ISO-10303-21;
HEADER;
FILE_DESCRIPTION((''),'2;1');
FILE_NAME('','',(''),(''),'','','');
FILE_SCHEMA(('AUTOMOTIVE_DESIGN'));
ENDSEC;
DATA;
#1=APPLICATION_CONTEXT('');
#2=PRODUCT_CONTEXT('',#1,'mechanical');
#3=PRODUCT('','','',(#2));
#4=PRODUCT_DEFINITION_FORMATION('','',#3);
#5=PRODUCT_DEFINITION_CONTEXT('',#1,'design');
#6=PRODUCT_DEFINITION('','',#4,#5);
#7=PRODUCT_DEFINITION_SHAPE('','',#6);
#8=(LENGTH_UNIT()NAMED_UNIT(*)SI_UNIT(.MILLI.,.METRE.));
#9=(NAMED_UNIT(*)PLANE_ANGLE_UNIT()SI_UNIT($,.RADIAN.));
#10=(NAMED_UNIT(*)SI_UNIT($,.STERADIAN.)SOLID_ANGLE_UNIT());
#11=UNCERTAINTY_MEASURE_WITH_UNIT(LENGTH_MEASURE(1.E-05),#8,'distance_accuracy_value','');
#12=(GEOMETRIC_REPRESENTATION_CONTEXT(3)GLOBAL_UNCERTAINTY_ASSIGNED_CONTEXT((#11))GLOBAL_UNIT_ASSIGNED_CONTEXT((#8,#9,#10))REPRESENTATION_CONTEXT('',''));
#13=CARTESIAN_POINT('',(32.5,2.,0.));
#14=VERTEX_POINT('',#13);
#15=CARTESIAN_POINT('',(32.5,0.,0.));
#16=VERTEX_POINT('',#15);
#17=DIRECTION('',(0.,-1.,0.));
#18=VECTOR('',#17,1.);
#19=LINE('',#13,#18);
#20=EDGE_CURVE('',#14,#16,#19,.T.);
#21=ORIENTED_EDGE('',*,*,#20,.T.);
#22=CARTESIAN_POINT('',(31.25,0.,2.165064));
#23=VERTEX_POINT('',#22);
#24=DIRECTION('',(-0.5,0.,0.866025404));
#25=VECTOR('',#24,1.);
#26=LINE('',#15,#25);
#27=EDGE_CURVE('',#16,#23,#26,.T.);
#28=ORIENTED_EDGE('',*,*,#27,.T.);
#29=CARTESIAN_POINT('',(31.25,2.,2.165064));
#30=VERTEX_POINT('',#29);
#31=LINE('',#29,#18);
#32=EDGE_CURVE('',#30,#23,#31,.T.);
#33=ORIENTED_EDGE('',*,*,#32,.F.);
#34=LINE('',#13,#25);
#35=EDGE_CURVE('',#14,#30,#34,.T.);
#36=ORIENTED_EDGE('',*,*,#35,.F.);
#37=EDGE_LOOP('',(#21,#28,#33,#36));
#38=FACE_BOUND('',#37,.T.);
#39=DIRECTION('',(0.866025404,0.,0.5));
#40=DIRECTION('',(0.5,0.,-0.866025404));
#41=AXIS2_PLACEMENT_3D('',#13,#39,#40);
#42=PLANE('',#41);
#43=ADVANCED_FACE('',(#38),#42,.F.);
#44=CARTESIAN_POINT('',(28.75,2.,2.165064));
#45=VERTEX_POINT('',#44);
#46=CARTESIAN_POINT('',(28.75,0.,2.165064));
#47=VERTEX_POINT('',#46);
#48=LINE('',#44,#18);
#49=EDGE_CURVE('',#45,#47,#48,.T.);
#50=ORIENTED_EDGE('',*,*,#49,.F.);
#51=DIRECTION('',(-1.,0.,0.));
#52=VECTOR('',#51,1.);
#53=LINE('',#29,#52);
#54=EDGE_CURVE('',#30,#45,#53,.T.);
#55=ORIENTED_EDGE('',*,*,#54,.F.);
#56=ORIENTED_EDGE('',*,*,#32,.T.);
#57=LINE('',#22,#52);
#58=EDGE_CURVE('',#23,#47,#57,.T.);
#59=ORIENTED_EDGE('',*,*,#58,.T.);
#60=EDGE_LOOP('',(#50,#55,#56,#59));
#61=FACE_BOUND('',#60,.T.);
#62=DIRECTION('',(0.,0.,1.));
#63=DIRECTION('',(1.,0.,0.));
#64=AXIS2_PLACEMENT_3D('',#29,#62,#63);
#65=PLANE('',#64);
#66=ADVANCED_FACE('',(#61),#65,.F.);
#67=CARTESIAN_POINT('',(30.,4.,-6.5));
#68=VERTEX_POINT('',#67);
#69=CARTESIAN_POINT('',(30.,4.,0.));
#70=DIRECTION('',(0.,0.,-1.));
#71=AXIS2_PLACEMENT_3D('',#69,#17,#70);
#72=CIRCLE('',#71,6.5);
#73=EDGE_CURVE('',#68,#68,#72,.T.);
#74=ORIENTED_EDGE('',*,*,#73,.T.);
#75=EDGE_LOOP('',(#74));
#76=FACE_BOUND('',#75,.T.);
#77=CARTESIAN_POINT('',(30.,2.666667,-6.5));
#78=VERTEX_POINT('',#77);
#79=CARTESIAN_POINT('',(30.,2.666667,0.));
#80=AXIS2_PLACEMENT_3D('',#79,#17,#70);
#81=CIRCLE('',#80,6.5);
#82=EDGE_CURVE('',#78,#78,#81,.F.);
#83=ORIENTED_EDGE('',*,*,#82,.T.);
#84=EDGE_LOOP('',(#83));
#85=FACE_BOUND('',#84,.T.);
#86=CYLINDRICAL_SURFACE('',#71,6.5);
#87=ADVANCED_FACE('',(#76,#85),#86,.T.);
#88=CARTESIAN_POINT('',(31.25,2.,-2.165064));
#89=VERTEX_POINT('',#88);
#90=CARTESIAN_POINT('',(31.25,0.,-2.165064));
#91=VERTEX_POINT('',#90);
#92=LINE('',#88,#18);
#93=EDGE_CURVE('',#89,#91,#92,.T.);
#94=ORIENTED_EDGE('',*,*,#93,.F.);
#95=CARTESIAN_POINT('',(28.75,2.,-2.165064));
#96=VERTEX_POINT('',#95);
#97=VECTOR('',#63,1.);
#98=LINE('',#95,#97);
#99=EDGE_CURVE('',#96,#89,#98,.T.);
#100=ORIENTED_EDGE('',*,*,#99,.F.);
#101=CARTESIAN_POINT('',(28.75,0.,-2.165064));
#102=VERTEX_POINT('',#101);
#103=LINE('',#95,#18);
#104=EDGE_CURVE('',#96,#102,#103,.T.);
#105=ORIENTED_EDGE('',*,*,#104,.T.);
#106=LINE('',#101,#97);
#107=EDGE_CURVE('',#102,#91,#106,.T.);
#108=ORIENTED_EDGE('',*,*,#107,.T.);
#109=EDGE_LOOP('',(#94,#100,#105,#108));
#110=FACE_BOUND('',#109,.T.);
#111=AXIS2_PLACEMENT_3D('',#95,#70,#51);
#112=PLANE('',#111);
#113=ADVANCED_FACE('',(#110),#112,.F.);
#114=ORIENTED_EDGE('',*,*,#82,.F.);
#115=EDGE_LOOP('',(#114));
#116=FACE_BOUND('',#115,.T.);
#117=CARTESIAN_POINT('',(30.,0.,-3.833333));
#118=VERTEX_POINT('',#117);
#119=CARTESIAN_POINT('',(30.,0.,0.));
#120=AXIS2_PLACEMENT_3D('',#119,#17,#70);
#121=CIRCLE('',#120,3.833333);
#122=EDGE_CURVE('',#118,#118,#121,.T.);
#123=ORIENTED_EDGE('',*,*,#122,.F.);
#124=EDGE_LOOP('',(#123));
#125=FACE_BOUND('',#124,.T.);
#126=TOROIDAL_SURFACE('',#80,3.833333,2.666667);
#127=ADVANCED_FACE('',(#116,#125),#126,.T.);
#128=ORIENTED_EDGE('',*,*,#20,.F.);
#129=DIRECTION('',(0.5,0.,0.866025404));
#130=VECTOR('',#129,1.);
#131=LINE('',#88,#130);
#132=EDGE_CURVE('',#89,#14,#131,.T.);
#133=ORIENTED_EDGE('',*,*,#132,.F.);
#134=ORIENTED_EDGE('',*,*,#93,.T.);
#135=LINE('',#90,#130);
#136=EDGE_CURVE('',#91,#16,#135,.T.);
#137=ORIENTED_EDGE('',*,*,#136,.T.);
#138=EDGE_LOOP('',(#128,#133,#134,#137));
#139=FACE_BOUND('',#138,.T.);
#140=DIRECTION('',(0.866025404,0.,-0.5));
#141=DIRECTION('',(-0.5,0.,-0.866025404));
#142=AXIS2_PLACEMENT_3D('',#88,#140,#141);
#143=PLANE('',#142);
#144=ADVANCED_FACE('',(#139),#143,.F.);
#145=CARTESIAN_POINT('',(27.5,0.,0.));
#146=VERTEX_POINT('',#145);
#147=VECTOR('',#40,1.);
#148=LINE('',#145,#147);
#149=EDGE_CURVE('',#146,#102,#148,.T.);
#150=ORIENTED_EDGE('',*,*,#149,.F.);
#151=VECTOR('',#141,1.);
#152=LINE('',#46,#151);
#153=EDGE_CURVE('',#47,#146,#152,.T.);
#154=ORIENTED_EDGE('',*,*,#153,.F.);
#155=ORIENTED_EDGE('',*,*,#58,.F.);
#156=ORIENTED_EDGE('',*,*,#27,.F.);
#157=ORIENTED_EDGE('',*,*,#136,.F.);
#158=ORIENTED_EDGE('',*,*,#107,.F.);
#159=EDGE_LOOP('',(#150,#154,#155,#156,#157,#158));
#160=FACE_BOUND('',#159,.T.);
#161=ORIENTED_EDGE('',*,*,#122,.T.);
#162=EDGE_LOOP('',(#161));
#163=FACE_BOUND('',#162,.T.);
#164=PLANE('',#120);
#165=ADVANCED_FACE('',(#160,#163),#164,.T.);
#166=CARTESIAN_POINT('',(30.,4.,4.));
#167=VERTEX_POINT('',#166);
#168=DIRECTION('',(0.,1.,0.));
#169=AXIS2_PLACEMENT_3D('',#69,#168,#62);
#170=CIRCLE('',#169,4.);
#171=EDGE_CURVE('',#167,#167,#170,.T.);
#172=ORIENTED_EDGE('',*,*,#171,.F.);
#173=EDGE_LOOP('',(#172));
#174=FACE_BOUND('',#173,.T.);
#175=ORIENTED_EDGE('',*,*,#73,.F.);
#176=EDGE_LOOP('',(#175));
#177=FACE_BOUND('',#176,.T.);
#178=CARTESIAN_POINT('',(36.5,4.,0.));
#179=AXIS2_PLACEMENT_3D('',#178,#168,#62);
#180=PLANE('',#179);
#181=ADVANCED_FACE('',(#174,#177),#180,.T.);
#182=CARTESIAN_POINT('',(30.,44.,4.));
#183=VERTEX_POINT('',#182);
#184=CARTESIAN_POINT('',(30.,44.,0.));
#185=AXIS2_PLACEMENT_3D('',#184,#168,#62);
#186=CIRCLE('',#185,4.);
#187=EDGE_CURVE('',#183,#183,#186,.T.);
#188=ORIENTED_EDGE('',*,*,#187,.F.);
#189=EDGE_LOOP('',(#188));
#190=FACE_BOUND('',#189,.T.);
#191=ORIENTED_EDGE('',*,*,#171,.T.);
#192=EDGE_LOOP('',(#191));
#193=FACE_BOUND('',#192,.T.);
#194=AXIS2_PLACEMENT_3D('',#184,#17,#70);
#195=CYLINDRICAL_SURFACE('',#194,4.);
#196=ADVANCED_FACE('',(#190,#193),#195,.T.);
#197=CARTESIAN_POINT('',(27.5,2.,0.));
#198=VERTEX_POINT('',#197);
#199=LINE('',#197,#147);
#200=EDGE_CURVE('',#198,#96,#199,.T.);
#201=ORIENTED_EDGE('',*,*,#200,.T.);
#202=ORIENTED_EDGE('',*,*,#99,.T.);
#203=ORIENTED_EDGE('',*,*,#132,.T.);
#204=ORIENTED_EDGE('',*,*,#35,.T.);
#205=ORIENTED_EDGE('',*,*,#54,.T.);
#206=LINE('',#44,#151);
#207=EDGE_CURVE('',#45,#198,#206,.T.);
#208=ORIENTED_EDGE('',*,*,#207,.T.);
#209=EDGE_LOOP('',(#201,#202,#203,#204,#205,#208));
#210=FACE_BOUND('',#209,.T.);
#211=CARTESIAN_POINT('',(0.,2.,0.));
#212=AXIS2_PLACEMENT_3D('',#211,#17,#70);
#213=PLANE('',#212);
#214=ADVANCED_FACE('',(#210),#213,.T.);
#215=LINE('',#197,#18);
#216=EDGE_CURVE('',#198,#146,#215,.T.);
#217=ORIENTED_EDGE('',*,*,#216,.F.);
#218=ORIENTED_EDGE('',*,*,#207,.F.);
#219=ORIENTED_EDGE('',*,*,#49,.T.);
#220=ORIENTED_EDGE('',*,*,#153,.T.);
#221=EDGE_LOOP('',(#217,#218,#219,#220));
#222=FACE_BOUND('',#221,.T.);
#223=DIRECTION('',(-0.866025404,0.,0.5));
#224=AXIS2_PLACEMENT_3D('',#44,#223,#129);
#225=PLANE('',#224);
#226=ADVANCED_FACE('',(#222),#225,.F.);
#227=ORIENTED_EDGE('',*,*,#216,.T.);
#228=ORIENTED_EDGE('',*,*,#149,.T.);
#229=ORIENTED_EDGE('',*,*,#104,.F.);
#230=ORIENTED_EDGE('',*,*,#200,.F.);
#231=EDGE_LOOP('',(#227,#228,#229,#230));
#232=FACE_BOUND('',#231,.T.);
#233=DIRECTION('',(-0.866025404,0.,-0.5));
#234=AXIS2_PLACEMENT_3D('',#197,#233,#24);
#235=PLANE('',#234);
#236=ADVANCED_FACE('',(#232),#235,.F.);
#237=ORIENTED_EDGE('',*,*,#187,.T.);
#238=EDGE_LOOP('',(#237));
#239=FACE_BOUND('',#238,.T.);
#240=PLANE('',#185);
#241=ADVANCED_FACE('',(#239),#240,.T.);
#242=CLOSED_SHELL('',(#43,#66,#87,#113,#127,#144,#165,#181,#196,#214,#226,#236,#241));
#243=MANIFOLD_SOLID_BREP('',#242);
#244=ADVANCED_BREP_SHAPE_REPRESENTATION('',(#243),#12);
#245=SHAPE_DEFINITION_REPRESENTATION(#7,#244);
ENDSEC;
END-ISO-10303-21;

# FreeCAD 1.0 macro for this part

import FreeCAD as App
import Part
import Sketcher

V = App.Vector
Q = App.Units.Quantity


def edges_at(feature, points):
    """Names of the edges that pass closest to the given points."""
    edges = feature.Shape.Edges
    near = lambda p: min(range(len(edges)), key=lambda i: edges[i].distToShape(Part.Vertex(*p))[0])
    return sorted({f"Edge{near(p) + 1}" for p in points})

doc = App.newDocument("Part")
body = doc.addObject("PartDesign::Body", "Body")

# Sketch on XY plane
sketch1 = body.newObject("Sketcher::SketchObject", "Sketch")
sketch1.AttachmentSupport = (doc.getObject("XY_Plane"), [""])
sketch1.MapMode = "FlatFace"
sketch1.addGeometry([
    Part.LineSegment(V(30, 4, 0), V(30, 0, 0)),
    Part.LineSegment(V(30, 0, 0), V(36.5, 0, 0)),
    Part.LineSegment(V(36.5, 0, 0), V(36.5, 4, 0)),
    Part.LineSegment(V(36.5, 4, 0), V(30, 4, 0)),
], False)
sketch1.addGeometry(Part.LineSegment(V(30, 4, 0), V(30, 0, 0)), True)  # axis
sketch1.addConstraint([
    Sketcher.Constraint("Coincident", 0, 2, 1, 1),
    Sketcher.Constraint("Coincident", 1, 2, 2, 1),
    Sketcher.Constraint("Coincident", 2, 2, 3, 1),
    Sketcher.Constraint("Coincident", 3, 2, 0, 1),
    Sketcher.Constraint("Vertical", 0),
    Sketcher.Constraint("Horizontal", 1),
    Sketcher.Constraint("Vertical", 2),
    Sketcher.Constraint("Horizontal", 3),
    Sketcher.Constraint("Vertical", 4),
    Sketcher.Constraint("Coincident", 4, 1, 3, 2),
    Sketcher.Constraint("PointOnObject", 0, 2, -1),
    Sketcher.Constraint("PointOnObject", 4, 2, -1),
    Sketcher.Constraint("DistanceY", 0, 2, 0, 1, Q("4 mm")),
    Sketcher.Constraint("DistanceX", 1, 1, 1, 2, Q("6.5 mm")),
    Sketcher.Constraint("DistanceX", -1, 1, 0, 2, Q("30 mm")),
])
revolution = body.newObject("PartDesign::Revolution", "Revolution")
revolution.Profile = sketch1
revolution.ReferenceAxis = (sketch1, ["Axis0"])
revolution.Angle = 360

# Sketch on XZ plane
sketch2 = body.newObject("Sketcher::SketchObject", "Sketch001")
sketch2.AttachmentSupport = (doc.getObject("XZ_Plane"), [""])
sketch2.MapMode = "FlatFace"
sketch2.AttachmentOffset = App.Placement(V(0, 0, -4), App.Rotation())
sketch2.addGeometry(Part.Circle(V(30, 0, 0), V(0, 0, 1), 4), False)
sketch2.addConstraint([
    Sketcher.Constraint("PointOnObject", 0, 3, -1),
    Sketcher.Constraint("Diameter", 0, Q("8 mm")),
    Sketcher.Constraint("DistanceX", -1, 1, 0, 3, Q("30 mm")),
])
pad1 = body.newObject("PartDesign::Pad", "Pad")
pad1.Profile = sketch2
pad1.Length = 40
pad1.Reversed = True

# Sketch on XZ plane
sketch3 = body.newObject("Sketcher::SketchObject", "Sketch002")
sketch3.AttachmentSupport = (doc.getObject("XZ_Plane"), [""])
sketch3.MapMode = "FlatFace"
sketch3.addGeometry([
    Part.LineSegment(V(28.8, -2.2, 0), V(31.2, -2.2, 0)),  # 0
    Part.LineSegment(V(31.2, -2.2, 0), V(32.5, 0, 0)),  # 1
    Part.LineSegment(V(32.5, 0, 0), V(31.2, 2.2, 0)),  # 2
    Part.LineSegment(V(31.2, 2.2, 0), V(28.8, 2.2, 0)),  # 3
    Part.LineSegment(V(28.8, 2.2, 0), V(27.5, 0, 0)),  # 4
    Part.LineSegment(V(27.5, 0, 0), V(28.8, -2.2, 0)),  # 5
], False)
sketch3.addConstraint([
    Sketcher.Constraint("Coincident", 0, 2, 1, 1),
    Sketcher.Constraint("Coincident", 1, 2, 2, 1),
    Sketcher.Constraint("Coincident", 2, 2, 3, 1),
    Sketcher.Constraint("Coincident", 3, 2, 4, 1),
    Sketcher.Constraint("Coincident", 4, 2, 5, 1),
    Sketcher.Constraint("Coincident", 5, 2, 0, 1),
    Sketcher.Constraint("Horizontal", 0),
    Sketcher.Constraint("Horizontal", 3),
    Sketcher.Constraint("Symmetric", 0, 2, 2, 2, -1),
    Sketcher.Constraint("PointOnObject", 1, 2, -1),
    Sketcher.Constraint("PointOnObject", 4, 2, -1),
    Sketcher.Constraint("Parallel", 1, 4),
    Sketcher.Constraint("Parallel", 2, 5),
    Sketcher.Constraint("Angle", 1, Q("60 deg")),
    Sketcher.Constraint("DistanceX", 0, 1, 0, 2, Q("2.5 mm")),
    Sketcher.Constraint("DistanceX", 4, 2, 1, 2, Q("5 mm")),
    Sketcher.Constraint("DistanceX", -1, 1, 1, 2, Q("32.5 mm")),
])
pocket1 = body.newObject("PartDesign::Pocket", "Pocket")
pocket1.Profile = sketch3
pocket1.Length = 2
doc.recompute()

fillet = body.newObject("PartDesign::Fillet", "Fillet")
fillet.Base = (pocket1, edges_at(pocket1, [(23.5, 0, 0)]))
fillet.Radius = 2.666667

doc.recompute()
